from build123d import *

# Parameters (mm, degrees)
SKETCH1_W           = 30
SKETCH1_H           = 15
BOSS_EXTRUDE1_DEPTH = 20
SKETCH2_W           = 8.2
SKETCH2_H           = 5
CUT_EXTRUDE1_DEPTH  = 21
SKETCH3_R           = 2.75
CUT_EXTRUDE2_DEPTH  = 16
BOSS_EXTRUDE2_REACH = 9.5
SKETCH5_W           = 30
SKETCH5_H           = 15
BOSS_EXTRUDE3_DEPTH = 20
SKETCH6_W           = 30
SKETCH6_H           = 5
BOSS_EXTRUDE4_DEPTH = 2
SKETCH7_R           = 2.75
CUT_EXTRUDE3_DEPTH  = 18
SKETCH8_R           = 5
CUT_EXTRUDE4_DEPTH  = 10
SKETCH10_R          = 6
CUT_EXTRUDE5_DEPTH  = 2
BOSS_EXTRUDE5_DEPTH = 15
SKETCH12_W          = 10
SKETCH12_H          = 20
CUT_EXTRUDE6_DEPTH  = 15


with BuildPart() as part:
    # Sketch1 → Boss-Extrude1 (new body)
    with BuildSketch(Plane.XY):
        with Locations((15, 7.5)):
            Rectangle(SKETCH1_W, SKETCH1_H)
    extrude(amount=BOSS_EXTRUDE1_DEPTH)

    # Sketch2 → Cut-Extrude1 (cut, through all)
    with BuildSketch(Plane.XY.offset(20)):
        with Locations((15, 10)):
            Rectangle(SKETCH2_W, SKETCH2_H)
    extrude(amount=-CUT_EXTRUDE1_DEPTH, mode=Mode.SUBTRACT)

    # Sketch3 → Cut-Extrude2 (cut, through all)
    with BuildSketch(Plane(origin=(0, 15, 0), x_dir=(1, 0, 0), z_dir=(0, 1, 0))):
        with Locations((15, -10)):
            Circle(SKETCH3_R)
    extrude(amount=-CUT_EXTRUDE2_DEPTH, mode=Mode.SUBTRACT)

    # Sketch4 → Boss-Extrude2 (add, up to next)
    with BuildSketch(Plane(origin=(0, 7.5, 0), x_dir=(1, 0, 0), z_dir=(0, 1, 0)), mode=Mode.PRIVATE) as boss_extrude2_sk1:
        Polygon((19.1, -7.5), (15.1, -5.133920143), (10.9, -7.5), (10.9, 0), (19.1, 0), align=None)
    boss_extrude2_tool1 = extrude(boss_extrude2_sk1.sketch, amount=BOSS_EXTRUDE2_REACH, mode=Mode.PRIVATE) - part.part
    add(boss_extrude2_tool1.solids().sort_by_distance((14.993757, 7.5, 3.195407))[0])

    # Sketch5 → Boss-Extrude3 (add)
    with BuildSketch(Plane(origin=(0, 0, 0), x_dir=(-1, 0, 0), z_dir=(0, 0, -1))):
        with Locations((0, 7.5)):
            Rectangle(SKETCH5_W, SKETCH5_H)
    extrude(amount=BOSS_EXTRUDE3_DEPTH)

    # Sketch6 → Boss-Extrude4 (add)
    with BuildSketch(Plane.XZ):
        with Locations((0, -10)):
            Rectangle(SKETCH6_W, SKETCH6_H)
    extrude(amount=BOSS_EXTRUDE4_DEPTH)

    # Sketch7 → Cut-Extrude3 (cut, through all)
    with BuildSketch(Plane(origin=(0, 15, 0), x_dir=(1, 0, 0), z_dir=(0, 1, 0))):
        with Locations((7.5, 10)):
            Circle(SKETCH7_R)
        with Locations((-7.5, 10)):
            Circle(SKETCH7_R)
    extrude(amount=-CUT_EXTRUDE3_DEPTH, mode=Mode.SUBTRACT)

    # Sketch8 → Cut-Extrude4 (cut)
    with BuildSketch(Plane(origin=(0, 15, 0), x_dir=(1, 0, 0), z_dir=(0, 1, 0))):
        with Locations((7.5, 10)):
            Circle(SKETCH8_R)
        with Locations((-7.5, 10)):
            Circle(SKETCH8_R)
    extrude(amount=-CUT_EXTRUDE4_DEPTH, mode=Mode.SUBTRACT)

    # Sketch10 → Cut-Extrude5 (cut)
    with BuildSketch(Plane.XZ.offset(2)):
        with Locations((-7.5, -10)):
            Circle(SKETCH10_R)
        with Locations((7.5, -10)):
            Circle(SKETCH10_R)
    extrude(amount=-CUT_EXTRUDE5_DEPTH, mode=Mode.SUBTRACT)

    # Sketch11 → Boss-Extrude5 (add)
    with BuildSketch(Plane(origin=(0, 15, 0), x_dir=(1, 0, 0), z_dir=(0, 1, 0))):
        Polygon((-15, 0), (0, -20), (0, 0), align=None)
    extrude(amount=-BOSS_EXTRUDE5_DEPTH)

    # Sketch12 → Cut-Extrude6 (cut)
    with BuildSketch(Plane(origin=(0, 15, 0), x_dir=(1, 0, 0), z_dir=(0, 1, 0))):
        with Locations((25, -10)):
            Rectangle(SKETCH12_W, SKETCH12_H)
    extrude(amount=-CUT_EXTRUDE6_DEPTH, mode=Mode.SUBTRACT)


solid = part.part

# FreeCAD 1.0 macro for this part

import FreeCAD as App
import Part
import Sketcher
Q = App.Units.Quantity


def add_polygon(sketch, points):
    """Adds a closed chain of lines whose ends are joined by coincident constraints."""
    first, n = sketch.GeometryCount, len(points)
    for a, b in zip(points, points[1:] + points[:1]):
        sketch.addGeometry(Part.LineSegment(App.Vector(*a, 0), App.Vector(*b, 0)), False)
    for i in range(n):
        sketch.addConstraint(Sketcher.Constraint("Coincident", first + i, 2, first + (i + 1) % n, 1))

doc = App.newDocument("Part")
body = doc.addObject("PartDesign::Body", "Body")

# Sketch on XY plane
sketch1 = body.newObject("Sketcher::SketchObject", "Sketch")
sketch1.AttachmentSupport = (doc.getObject("XY_Plane"), [""])
sketch1.MapMode = "FlatFace"
add_polygon(sketch1, [(0, 15), (0, 0), (30, 0), (30, 15)])  # lines 0-3
sketch1.addConstraint(Sketcher.Constraint("Vertical", 0))
sketch1.addConstraint(Sketcher.Constraint("Horizontal", 1))
sketch1.addConstraint(Sketcher.Constraint("Vertical", 2))
sketch1.addConstraint(Sketcher.Constraint("Horizontal", 3))
sketch1.addConstraint(Sketcher.Constraint("Coincident", 0, 2, -1, 1))
sketch1.addConstraint(Sketcher.Constraint("DistanceX", 1, 1, 1, 2, Q("30 mm")))
sketch1.addConstraint(Sketcher.Constraint("DistanceY", 0, 2, 0, 1, Q("15 mm")))
pad1 = body.newObject("PartDesign::Pad", "Pad")
pad1.Profile = sketch1
pad1.Length = 20

# Sketch on XY plane
sketch2 = body.newObject("Sketcher::SketchObject", "Sketch001")
sketch2.AttachmentSupport = (doc.getObject("XY_Plane"), [""])
sketch2.MapMode = "FlatFace"
sketch2.AttachmentOffset = App.Placement(App.Vector(0, 0, 20), App.Rotation())
add_polygon(sketch2, [(10.9, 12.5), (10.9, 7.5), (19.1, 7.5), (19.1, 12.5)])  # lines 0-3
sketch2.addConstraint(Sketcher.Constraint("Vertical", 0))
sketch2.addConstraint(Sketcher.Constraint("Horizontal", 1))
sketch2.addConstraint(Sketcher.Constraint("Vertical", 2))
sketch2.addConstraint(Sketcher.Constraint("Horizontal", 3))
sketch2.addConstraint(Sketcher.Constraint("DistanceY", 0, 2, 0, 1, Q("5 mm")))
sketch2.addConstraint(Sketcher.Constraint("DistanceX", 1, 1, 1, 2, Q("8.2 mm")))
sketch2.addConstraint(Sketcher.Constraint("DistanceX", -1, 1, 0, 2, Q("10.9 mm")))
sketch2.addConstraint(Sketcher.Constraint("DistanceY", -1, 1, 0, 2, Q("7.5 mm")))
pocket1 = body.newObject("PartDesign::Pocket", "Pocket")
pocket1.Profile = sketch2
pocket1.Type = "ThroughAll"

# Sketch on XZ plane
sketch3 = body.newObject("Sketcher::SketchObject", "Sketch002")
sketch3.AttachmentSupport = (doc.getObject("XZ_Plane"), [""])
sketch3.MapMode = "FlatFace"
sketch3.AttachmentOffset = App.Placement(App.Vector(0, 0, -15), App.Rotation())
sketch3.addGeometry(Part.Circle(App.Vector(15, 10, 0), App.Vector(0, 0, 1), 2.75), False)
sketch3.addConstraint(Sketcher.Constraint("Diameter", 0, Q("5.5 mm")))
sketch3.addConstraint(Sketcher.Constraint("DistanceX", -1, 1, 0, 3, Q("15 mm")))
sketch3.addConstraint(Sketcher.Constraint("DistanceY", -1, 1, 0, 3, Q("10 mm")))
pocket2 = body.newObject("PartDesign::Pocket", "Pocket001")
pocket2.Profile = sketch3
pocket2.Type = "ThroughAll"
pocket2.Reversed = True

# Sketch on XZ plane
sketch4 = body.newObject("Sketcher::SketchObject", "Sketch003")
sketch4.AttachmentSupport = (doc.getObject("XZ_Plane"), [""])
sketch4.MapMode = "FlatFace"
sketch4.AttachmentOffset = App.Placement(App.Vector(0, 0, -7.5), App.Rotation())
add_polygon(sketch4, [(15.1, 5.13392), (19.1, 7.5), (19.1, 0), (10.9, 0), (10.9, 7.5)])  # lines 0-4
sketch4.addConstraint(Sketcher.Constraint("Vertical", 1))
sketch4.addConstraint(Sketcher.Constraint("Horizontal", 2))
sketch4.addConstraint(Sketcher.Constraint("Vertical", 3))
sketch4.addConstraint(Sketcher.Constraint("PointOnObject", 1, 2, -1))
sketch4.addConstraint(Sketcher.Constraint("Horizontal", 0, 2, 3, 2))
sketch4.addConstraint(Sketcher.Constraint("DistanceX", 2, 2, 2, 1, Q("8.2 mm")))
sketch4.addConstraint(Sketcher.Constraint("DistanceY", 1, 2, 1, 1, Q("7.5 mm")))
sketch4.addConstraint(Sketcher.Constraint("DistanceX", 4, 2, 0, 2, Q("4 mm")))
sketch4.addConstraint(Sketcher.Constraint("DistanceX", -1, 1, 0, 2, Q("19.1 mm")))
sketch4.addConstraint(Sketcher.Constraint("Distance", 0, Q("4.647401 mm")))
pad2 = body.newObject("PartDesign::Pad", "Pad001")
pad2.Profile = sketch4
pad2.Type = "UpToFirst"
pad2.Reversed = True

# Sketch on XY plane
sketch5 = body.newObject("Sketcher::SketchObject", "Sketch004")
sketch5.AttachmentSupport = (doc.getObject("XY_Plane"), [""])
sketch5.MapMode = "FlatFace"
add_polygon(sketch5, [(15, 15), (15, 0), (-15, 0), (-15, 15)])  # lines 0-3
sketch5.addConstraint(Sketcher.Constraint("Vertical", 0))
sketch5.addConstraint(Sketcher.Constraint("Horizontal", 1))
sketch5.addConstraint(Sketcher.Constraint("Vertical", 2))
sketch5.addConstraint(Sketcher.Constraint("Horizontal", 3))
sketch5.addConstraint(Sketcher.Constraint("Symmetric", 0, 2, 1, 2, -1, 1))
sketch5.addConstraint(Sketcher.Constraint("DistanceX", 1, 2, 1, 1, Q("30 mm")))
sketch5.addConstraint(Sketcher.Constraint("DistanceY", 0, 2, 0, 1, Q("15 mm")))
pad3 = body.newObject("PartDesign::Pad", "Pad002")
pad3.Profile = sketch5
pad3.Length = 20
pad3.Reversed = True

# Sketch on XZ plane
sketch6 = body.newObject("Sketcher::SketchObject", "Sketch005")
sketch6.AttachmentSupport = (doc.getObject("XZ_Plane"), [""])
sketch6.MapMode = "FlatFace"
add_polygon(sketch6, [(-15, -7.5), (-15, -12.5), (15, -12.5), (15, -7.5)])  # lines 0-3
sketch6.addConstraint(Sketcher.Constraint("Vertical", 0))
sketch6.addConstraint(Sketcher.Constraint("Horizontal", 1))
sketch6.addConstraint(Sketcher.Constraint("Vertical", 2))
sketch6.addConstraint(Sketcher.Constraint("Horizontal", 3))
sketch6.addConstraint(Sketcher.Constraint("DistanceX", 1, 1, 1, 2, Q("30 mm")))
sketch6.addConstraint(Sketcher.Constraint("DistanceY", 0, 2, 0, 1, Q("5 mm")))
sketch6.addConstraint(Sketcher.Constraint("DistanceX", 0, 2, -1, 1, Q("15 mm")))
sketch6.addConstraint(Sketcher.Constraint("DistanceY", 0, 2, -1, 1, Q("12.5 mm")))
pad4 = body.newObject("PartDesign::Pad", "Pad003")
pad4.Profile = sketch6
pad4.Length = 2

# Sketch on XZ plane
sketch7 = body.newObject("Sketcher::SketchObject", "Sketch006")
sketch7.AttachmentSupport = (doc.getObject("XZ_Plane"), [""])
sketch7.MapMode = "FlatFace"
sketch7.AttachmentOffset = App.Placement(App.Vector(0, 0, -15), App.Rotation())
sketch7.addGeometry(Part.Circle(App.Vector(7.5, -10, 0), App.Vector(0, 0, 1), 2.75), False)
sketch7.addGeometry(Part.Circle(App.Vector(-7.5, -10, 0), App.Vector(0, 0, 1), 2.75), False)
sketch7.addConstraint(Sketcher.Constraint("Equal", 0, 1))
sketch7.addConstraint(Sketcher.Constraint("Symmetric", 0, 3, 1, 3, -2))
sketch7.addConstraint(Sketcher.Constraint("Diameter", 0, Q("5.5 mm")))
sketch7.addConstraint(Sketcher.Constraint("DistanceY", 0, 3, -1, 1, Q("10 mm")))
sketch7.addConstraint(Sketcher.Constraint("DistanceX", 1, 3, 0, 3, Q("15 mm")))
pocket3 = body.newObject("PartDesign::Pocket", "Pocket002")
pocket3.Profile = sketch7
pocket3.Type = "ThroughAll"
pocket3.Reversed = True

# Sketch on XZ plane
sketch8 = body.newObject("Sketcher::SketchObject", "Sketch007")
sketch8.AttachmentSupport = (doc.getObject("XZ_Plane"), [""])
sketch8.MapMode = "FlatFace"
sketch8.AttachmentOffset = App.Placement(App.Vector(0, 0, -15), App.Rotation())
sketch8.addGeometry(Part.Circle(App.Vector(7.5, -10, 0), App.Vector(0, 0, 1), 5), False)
sketch8.addGeometry(Part.Circle(App.Vector(-7.5, -10, 0), App.Vector(0, 0, 1), 5), False)
sketch8.addConstraint(Sketcher.Constraint("Equal", 0, 1))
sketch8.addConstraint(Sketcher.Constraint("Symmetric", 0, 3, 1, 3, -2))
sketch8.addConstraint(Sketcher.Constraint("Diameter", 0, Q("10 mm")))
sketch8.addConstraint(Sketcher.Constraint("DistanceY", 0, 3, -1, 1, Q("10 mm")))
sketch8.addConstraint(Sketcher.Constraint("DistanceX", 1, 3, 0, 3, Q("15 mm")))
pocket4 = body.newObject("PartDesign::Pocket", "Pocket003")
pocket4.Profile = sketch8
pocket4.Length = 10
pocket4.Reversed = True

# Sketch on XZ plane
sketch9 = body.newObject("Sketcher::SketchObject", "Sketch008")
sketch9.AttachmentSupport = (doc.getObject("XZ_Plane"), [""])
sketch9.MapMode = "FlatFace"
sketch9.AttachmentOffset = App.Placement(App.Vector(0, 0, 2), App.Rotation())
sketch9.addGeometry(Part.Circle(App.Vector(-7.5, -10, 0), App.Vector(0, 0, 1), 6), False)
sketch9.addGeometry(Part.Circle(App.Vector(7.5, -10, 0), App.Vector(0, 0, 1), 6), False)
sketch9.addConstraint(Sketcher.Constraint("Equal", 0, 1))
sketch9.addConstraint(Sketcher.Constraint("Symmetric", 0, 3, 1, 3, -2))
sketch9.addConstraint(Sketcher.Constraint("Diameter", 0, Q("12 mm")))
sketch9.addConstraint(Sketcher.Constraint("DistanceY", 0, 3, -1, 1, Q("10 mm")))
sketch9.addConstraint(Sketcher.Constraint("DistanceX", 0, 3, 1, 3, Q("15 mm")))
pocket5 = body.newObject("PartDesign::Pocket", "Pocket004")
pocket5.Profile = sketch9
pocket5.Length = 2

# Sketch on XZ plane
sketch10 = body.newObject("Sketcher::SketchObject", "Sketch009")
sketch10.AttachmentSupport = (doc.getObject("XZ_Plane"), [""])
sketch10.MapMode = "FlatFace"
sketch10.AttachmentOffset = App.Placement(App.Vector(0, 0, -15), App.Rotation())
add_polygon(sketch10, [(-15, 0), (0, 20), (0, 0)])  # lines 0-2
sketch10.addConstraint(Sketcher.Constraint("Vertical", 1))
sketch10.addConstraint(Sketcher.Constraint("Horizontal", 2))
sketch10.addConstraint(Sketcher.Constraint("Coincident", 1, 2, -1, 1))
sketch10.addConstraint(Sketcher.Constraint("DistanceX", 2, 2, 2, 1, Q("15 mm")))
sketch10.addConstraint(Sketcher.Constraint("DistanceY", 1, 2, 1, 1, Q("20 mm")))
pad5 = body.newObject("PartDesign::Pad", "Pad004")
pad5.Profile = sketch10
pad5.Length = 15

# Sketch on XZ plane
sketch11 = body.newObject("Sketcher::SketchObject", "Sketch010")
sketch11.AttachmentSupport = (doc.getObject("XZ_Plane"), [""])
sketch11.MapMode = "FlatFace"
sketch11.AttachmentOffset = App.Placement(App.Vector(0, 0, -15), App.Rotation())
add_polygon(sketch11, [(20, 0), (20, 20), (30, 20), (30, 0)])  # lines 0-3
sketch11.addConstraint(Sketcher.Constraint("Vertical", 0))
sketch11.addConstraint(Sketcher.Constraint("Horizontal", 1))
sketch11.addConstraint(Sketcher.Constraint("Vertical", 2))
sketch11.addConstraint(Sketcher.Constraint("Horizontal", 3))
sketch11.addConstraint(Sketcher.Constraint("PointOnObject", 2, 2, -1))
sketch11.addConstraint(Sketcher.Constraint("DistanceX", 1, 1, 1, 2, Q("10 mm")))
sketch11.addConstraint(Sketcher.Constraint("DistanceY", 0, 1, 0, 2, Q("20 mm")))
sketch11.addConstraint(Sketcher.Constraint("DistanceX", -1, 1, 0, 2, Q("20 mm")))
pocket6 = body.newObject("PartDesign::Pocket", "Pocket005")
pocket6.Profile = sketch11
pocket6.Length = 15
pocket6.Reversed = True

doc.recompute()
